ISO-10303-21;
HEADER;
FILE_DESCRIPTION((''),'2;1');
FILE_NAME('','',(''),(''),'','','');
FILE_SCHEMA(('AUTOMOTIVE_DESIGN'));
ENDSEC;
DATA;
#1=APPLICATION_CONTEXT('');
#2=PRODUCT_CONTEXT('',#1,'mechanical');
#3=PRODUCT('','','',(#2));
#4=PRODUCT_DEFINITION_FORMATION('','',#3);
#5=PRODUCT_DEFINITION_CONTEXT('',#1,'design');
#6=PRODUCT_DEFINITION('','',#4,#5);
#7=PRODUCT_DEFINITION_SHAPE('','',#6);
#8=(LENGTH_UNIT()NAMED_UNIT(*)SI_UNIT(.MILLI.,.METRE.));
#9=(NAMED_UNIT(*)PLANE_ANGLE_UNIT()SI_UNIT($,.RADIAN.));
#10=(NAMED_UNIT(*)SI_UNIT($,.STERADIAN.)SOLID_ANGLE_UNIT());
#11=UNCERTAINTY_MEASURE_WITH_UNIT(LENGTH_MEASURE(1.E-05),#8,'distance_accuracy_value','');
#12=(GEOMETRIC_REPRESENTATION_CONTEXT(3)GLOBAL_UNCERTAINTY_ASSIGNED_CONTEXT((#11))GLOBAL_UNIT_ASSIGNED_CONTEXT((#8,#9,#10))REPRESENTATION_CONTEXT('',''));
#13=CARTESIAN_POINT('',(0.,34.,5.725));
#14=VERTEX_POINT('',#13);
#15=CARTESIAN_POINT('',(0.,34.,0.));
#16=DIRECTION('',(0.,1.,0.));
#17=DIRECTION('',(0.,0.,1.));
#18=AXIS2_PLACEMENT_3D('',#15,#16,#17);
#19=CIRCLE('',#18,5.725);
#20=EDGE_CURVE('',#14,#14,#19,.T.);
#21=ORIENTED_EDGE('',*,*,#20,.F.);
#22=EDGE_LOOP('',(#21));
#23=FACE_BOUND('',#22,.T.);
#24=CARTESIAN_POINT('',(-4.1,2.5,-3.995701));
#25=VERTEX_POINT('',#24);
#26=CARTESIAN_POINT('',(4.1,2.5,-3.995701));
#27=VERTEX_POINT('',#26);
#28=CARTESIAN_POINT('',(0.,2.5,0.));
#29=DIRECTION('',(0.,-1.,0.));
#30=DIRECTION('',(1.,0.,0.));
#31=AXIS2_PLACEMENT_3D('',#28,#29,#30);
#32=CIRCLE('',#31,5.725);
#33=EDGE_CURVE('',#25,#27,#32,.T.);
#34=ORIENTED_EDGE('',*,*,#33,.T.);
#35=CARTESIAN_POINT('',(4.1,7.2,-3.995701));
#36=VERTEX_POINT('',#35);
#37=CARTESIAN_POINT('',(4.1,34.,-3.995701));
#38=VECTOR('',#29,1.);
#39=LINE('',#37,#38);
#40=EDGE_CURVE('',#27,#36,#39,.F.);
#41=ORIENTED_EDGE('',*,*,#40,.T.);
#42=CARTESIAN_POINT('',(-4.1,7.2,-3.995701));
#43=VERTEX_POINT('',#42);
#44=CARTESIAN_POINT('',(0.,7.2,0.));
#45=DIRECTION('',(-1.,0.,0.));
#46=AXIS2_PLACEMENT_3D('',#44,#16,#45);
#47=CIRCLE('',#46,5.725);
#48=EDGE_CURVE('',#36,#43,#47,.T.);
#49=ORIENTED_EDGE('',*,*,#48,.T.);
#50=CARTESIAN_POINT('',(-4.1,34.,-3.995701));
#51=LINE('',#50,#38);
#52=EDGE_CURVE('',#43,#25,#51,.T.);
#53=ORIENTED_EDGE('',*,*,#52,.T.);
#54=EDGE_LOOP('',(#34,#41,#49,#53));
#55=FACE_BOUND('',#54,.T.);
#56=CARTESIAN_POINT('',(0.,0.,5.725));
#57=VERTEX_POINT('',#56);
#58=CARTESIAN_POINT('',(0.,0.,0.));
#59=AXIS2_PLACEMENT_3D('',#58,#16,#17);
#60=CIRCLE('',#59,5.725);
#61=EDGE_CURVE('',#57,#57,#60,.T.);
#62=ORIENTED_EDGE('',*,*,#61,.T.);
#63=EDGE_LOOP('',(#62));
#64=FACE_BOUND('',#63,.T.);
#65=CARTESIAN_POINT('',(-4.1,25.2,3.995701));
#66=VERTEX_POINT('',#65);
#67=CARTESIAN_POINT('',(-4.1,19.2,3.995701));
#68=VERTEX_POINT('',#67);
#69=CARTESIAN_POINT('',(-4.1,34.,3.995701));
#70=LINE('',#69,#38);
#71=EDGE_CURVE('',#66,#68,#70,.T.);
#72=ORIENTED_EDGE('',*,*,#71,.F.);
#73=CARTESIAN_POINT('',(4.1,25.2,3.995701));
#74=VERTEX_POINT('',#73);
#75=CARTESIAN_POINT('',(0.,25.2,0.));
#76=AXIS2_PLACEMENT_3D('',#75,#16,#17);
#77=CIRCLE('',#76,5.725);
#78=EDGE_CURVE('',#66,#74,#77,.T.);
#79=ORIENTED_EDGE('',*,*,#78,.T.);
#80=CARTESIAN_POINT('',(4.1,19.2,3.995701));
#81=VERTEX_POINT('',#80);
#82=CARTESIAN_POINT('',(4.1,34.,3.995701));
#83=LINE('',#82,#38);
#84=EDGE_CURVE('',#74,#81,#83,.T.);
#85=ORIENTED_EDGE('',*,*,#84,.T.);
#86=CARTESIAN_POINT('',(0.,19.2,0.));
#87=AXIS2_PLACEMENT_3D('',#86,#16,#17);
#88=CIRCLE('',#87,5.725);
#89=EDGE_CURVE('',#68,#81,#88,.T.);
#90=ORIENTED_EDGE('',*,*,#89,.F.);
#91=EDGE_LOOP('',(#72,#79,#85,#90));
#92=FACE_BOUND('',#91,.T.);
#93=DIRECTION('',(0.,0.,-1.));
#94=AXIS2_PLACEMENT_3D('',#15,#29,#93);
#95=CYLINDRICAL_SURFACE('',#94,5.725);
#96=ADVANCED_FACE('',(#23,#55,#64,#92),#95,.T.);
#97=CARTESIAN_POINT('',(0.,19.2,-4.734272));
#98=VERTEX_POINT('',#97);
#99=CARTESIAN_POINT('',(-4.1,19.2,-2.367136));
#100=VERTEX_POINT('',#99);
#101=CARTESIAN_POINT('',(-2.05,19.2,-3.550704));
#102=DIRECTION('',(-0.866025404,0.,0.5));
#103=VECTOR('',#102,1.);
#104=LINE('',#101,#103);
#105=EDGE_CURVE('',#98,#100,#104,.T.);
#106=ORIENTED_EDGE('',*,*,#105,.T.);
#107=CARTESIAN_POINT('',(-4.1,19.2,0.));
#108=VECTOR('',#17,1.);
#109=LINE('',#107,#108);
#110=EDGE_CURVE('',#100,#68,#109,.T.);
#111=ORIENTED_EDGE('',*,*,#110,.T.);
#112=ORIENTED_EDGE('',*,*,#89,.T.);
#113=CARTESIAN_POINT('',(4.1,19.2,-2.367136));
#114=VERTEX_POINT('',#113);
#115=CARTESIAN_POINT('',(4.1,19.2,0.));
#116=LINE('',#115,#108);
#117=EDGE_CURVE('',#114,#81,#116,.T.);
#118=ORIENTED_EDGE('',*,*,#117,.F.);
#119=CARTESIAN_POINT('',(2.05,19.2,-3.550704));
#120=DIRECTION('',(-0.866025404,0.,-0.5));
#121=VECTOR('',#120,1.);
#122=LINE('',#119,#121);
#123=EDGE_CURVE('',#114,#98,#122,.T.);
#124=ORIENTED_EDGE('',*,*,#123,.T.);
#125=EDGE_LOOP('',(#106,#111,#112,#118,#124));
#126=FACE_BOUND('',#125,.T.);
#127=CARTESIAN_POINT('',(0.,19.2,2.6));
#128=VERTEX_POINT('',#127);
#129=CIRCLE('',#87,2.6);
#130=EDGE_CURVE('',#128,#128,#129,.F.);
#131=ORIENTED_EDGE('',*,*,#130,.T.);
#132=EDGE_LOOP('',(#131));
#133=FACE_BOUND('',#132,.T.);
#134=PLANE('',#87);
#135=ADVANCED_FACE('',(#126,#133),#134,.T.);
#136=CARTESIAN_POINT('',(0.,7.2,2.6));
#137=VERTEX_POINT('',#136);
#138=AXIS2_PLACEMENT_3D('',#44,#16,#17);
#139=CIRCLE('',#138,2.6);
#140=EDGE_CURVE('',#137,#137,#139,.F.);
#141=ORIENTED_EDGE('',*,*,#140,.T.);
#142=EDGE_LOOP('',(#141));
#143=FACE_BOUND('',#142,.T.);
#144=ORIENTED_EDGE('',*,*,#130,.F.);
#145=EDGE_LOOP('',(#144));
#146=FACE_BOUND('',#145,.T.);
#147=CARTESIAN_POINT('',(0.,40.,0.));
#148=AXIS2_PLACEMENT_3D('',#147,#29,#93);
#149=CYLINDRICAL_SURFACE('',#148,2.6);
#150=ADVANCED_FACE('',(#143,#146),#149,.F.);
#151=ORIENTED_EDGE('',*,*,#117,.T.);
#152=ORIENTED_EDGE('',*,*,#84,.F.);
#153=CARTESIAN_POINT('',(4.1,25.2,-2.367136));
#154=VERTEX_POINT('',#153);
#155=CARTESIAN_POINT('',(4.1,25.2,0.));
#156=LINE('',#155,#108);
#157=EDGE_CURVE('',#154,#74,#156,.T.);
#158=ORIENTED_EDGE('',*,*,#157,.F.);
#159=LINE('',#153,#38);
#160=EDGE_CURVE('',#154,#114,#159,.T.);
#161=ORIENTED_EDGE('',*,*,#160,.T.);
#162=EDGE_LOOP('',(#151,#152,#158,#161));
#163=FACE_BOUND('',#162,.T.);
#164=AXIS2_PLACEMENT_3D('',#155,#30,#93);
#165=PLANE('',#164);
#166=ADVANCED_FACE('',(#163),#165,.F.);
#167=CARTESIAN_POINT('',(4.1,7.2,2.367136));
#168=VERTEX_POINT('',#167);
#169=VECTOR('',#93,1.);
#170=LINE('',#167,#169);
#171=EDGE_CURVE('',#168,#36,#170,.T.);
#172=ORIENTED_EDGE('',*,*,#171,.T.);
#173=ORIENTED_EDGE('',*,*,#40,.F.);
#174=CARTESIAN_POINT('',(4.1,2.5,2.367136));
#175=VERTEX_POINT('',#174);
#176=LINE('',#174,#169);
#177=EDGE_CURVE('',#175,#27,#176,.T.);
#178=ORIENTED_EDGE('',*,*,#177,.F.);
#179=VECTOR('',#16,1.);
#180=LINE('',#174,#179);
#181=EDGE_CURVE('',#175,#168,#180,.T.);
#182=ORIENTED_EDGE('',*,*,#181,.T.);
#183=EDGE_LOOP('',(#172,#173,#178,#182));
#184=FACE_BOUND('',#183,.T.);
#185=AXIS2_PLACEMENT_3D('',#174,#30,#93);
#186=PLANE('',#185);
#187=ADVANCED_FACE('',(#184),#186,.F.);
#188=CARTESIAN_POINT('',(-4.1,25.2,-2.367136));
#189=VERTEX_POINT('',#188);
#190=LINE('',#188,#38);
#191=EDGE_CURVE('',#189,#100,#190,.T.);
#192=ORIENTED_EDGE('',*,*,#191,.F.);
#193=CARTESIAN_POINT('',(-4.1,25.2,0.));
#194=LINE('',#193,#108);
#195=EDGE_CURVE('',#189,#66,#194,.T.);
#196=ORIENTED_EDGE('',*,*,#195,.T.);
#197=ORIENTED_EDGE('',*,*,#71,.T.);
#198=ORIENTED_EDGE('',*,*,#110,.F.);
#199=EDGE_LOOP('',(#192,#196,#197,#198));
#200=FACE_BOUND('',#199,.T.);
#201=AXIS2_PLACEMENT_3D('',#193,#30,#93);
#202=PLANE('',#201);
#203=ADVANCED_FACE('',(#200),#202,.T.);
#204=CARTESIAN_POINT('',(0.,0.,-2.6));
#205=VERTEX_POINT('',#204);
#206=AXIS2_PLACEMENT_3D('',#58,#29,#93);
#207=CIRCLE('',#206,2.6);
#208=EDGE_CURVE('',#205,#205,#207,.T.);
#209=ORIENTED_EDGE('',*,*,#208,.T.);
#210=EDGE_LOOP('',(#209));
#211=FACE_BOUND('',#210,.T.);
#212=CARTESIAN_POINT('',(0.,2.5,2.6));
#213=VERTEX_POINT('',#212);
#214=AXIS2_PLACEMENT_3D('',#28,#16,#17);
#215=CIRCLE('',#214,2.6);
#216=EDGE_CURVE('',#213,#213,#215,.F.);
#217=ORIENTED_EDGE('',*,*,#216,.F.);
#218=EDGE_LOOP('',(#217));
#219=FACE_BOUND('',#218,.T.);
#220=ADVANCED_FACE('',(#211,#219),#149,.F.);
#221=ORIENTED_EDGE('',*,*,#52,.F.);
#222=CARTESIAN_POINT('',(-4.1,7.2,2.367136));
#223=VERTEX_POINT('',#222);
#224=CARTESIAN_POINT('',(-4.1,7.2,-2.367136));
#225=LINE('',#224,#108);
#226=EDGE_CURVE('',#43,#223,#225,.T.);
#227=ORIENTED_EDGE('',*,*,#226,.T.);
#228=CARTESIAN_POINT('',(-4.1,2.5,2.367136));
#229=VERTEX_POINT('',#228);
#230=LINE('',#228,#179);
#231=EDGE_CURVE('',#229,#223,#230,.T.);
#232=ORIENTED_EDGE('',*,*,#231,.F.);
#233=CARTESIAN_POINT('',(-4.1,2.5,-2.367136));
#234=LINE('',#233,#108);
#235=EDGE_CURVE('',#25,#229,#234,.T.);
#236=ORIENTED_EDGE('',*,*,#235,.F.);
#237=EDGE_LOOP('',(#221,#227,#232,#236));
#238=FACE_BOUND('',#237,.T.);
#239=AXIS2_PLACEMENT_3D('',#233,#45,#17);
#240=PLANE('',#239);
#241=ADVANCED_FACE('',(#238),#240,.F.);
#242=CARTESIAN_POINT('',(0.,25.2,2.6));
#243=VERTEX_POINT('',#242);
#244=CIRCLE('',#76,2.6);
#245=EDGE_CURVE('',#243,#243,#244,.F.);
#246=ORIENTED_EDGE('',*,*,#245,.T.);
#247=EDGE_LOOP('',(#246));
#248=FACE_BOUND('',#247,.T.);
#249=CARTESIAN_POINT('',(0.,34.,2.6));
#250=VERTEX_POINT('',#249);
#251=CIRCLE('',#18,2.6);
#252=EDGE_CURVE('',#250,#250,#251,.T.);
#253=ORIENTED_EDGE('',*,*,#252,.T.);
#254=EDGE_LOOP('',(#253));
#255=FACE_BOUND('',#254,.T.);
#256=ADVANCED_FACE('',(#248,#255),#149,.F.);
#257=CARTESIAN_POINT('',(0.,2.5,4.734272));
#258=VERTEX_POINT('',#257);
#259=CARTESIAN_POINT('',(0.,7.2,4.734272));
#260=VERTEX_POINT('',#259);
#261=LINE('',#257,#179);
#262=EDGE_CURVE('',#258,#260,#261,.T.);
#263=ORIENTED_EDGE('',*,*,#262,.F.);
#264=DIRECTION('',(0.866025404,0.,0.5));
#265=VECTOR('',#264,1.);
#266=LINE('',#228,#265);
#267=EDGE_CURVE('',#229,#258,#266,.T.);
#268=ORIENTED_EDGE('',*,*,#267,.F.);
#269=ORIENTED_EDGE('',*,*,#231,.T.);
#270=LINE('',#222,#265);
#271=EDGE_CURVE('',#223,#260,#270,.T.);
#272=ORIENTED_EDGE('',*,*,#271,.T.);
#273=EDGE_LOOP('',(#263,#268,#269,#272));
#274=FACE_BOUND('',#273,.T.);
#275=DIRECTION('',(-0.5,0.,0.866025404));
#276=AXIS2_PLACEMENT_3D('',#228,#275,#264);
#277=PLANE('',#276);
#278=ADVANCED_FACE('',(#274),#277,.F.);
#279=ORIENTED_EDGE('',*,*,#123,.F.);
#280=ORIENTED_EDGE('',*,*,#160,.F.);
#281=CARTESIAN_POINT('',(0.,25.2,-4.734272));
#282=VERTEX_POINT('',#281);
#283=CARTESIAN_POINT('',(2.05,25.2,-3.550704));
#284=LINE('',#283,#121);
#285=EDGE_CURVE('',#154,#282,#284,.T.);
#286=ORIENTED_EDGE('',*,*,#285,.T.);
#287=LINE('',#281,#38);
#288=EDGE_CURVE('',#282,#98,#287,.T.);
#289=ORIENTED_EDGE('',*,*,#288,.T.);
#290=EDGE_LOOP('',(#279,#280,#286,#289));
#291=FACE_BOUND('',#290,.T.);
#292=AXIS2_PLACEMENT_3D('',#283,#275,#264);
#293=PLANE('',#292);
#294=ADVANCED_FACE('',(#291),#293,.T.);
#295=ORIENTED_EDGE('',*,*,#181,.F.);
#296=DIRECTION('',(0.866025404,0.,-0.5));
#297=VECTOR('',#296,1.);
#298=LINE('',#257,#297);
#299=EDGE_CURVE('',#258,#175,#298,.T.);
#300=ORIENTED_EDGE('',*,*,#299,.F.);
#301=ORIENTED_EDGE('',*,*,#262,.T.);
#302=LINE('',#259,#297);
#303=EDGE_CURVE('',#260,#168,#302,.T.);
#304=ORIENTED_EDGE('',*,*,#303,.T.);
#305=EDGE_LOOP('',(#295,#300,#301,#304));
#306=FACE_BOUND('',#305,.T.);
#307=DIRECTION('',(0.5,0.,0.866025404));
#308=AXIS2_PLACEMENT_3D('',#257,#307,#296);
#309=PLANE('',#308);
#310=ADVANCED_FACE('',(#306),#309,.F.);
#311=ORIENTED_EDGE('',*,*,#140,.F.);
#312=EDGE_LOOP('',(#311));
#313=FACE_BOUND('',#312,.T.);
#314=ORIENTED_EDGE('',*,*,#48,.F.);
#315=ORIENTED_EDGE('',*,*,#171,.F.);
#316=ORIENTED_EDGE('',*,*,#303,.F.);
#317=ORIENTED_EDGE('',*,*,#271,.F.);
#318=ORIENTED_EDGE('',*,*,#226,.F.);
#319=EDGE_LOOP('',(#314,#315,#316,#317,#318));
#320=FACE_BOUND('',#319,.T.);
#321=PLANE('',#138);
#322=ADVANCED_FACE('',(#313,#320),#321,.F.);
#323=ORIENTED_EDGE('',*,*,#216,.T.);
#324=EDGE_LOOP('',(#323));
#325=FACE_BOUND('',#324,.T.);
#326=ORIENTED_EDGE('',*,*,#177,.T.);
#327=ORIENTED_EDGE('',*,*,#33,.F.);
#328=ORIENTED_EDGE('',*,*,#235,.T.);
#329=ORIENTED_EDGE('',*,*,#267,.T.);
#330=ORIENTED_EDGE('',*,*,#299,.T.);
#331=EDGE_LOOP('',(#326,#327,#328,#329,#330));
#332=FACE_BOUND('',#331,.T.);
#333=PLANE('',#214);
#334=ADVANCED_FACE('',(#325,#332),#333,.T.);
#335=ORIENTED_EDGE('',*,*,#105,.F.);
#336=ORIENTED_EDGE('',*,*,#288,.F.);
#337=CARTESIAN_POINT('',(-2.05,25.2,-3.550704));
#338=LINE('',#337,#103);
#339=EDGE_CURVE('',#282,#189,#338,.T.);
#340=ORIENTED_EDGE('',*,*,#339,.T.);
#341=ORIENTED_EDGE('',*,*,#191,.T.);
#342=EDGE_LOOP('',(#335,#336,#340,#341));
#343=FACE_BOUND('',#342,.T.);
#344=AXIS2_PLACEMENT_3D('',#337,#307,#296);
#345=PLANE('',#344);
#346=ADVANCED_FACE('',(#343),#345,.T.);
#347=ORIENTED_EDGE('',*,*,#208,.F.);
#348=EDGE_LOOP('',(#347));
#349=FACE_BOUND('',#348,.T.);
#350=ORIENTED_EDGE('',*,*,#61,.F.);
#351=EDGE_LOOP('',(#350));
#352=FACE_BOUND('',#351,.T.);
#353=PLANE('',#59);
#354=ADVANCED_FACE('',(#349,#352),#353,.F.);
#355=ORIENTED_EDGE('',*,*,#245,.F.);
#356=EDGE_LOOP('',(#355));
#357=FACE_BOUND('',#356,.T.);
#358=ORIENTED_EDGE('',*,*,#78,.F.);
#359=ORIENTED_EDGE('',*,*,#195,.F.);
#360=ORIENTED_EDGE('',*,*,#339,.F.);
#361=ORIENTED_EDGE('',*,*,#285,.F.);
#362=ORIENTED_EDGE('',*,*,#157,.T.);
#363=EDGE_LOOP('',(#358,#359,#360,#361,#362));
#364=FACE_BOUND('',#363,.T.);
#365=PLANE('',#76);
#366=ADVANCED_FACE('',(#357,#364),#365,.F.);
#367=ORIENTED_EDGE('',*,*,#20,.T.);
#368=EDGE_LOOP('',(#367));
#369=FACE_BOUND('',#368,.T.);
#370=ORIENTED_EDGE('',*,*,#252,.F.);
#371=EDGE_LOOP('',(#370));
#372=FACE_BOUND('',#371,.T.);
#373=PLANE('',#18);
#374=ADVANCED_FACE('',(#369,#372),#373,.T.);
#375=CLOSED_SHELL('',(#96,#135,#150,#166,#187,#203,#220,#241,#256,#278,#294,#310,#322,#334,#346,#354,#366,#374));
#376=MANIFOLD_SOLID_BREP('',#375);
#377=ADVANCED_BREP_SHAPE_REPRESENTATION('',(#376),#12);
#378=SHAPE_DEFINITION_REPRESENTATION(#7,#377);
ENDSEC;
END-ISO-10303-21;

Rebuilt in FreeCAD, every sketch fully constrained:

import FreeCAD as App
import Part
import Sketcher

V = App.Vector
Q = App.Units.Quantity

doc = App.newDocument("Part")
body = doc.addObject("PartDesign::Body", "Body")

sketch1 = body.newObject("Sketcher::SketchObject", "Sketch")
sketch1.AttachmentSupport = (doc.getObject("XZ_Plane"), [""])
sketch1.MapMode = "FlatFace"
sketch1.addGeometry([
    Part.Circle(V(0, 0, 0), V(0, 0, 1), 5.7),
    Part.Circle(V(0, 0, 0), V(0, 0, 1), 3),
], False)
sketch1.addConstraint([
    Sketcher.Constraint("Coincident", 0, 3, -1, 1),
    Sketcher.Constraint("Coincident", 1, 3, -1, 1),
    Sketcher.Constraint("Diameter", 1, 6.0),
    Sketcher.Constraint("Diameter", 0, 11.45),
])
pad1 = body.newObject("PartDesign::Pad", "Pad")
pad1.Profile = sketch1
pad1.Length = 34
pad1.Reversed = True

sketch2 = body.newObject("Sketcher::SketchObject", "Sketch001")
sketch2.AttachmentSupport = (doc.getObject("XZ_Plane"), [""])
sketch2.MapMode = "FlatFace"
sketch2.addGeometry(Part.Circle(V(0, 0, 0), V(0, 0, 1), 6), False)
sketch2.addConstraint([
    Sketcher.Constraint("Coincident", 0, 3, -1, 1),
    Sketcher.Constraint("Diameter", 0, 11.45),
])
pad2 = body.newObject("PartDesign::Pad", "Pad001")
pad2.Profile = sketch2
pad2.Length = 34
pad2.Reversed = True

sketch3 = body.newObject("Sketcher::SketchObject", "Sketch002")
sketch3.AttachmentSupport = (doc.getObject("XZ_Plane"), [""])
sketch3.MapMode = "FlatFace"
sketch3.addGeometry(Part.Circle(V(0, 0, 0), V(0, 0, 1), 2.6), False)
sketch3.addConstraint([
    Sketcher.Constraint("Coincident", 0, 3, -1, 1),
    Sketcher.Constraint("Diameter", 0, 5.2),
])
pocket1 = body.newObject("PartDesign::Pocket", "Pocket")
pocket1.Profile = sketch3
pocket1.Length = 40

sketch4 = body.newObject("Sketcher::SketchObject", "Sketch003")
sketch4.AttachmentSupport = (doc.getObject("XZ_Plane"), [""])
sketch4.MapMode = "FlatFace"
sketch4.AttachmentOffset = App.Placement(V(0, 0, -7.2), App.Rotation())
sketch4.addGeometry([
    Part.LineSegment(V(0, 4.7, 0), V(4.1, 2.4, 0)),
    Part.LineSegment(V(4.1, 2.4, 0), V(4.1, -2.4, 0)),
    Part.LineSegment(V(4.1, -2.4, 0), V(0, -4.7, 0)),
    Part.LineSegment(V(0, -4.7, 0), V(-4.1, -2.4, 0)),
    Part.LineSegment(V(-4.1, -2.4, 0), V(-4.1, 2.4, 0)),
    Part.LineSegment(V(-4.1, 2.4, 0), V(0, 4.7, 0)),
], False)
sketch4.addConstraint([
    Sketcher.Constraint("Coincident", 0, 2, 1, 1),
    Sketcher.Constraint("Coincident", 1, 2, 2, 1),
    Sketcher.Constraint("Coincident", 2, 2, 3, 1),
    Sketcher.Constraint("Coincident", 3, 2, 4, 1),
    Sketcher.Constraint("Coincident", 4, 2, 5, 1),
    Sketcher.Constraint("Coincident", 5, 2, 0, 1),
    Sketcher.Constraint("Vertical", 1),
    Sketcher.Constraint("Vertical", 4),
    Sketcher.Constraint("Symmetric", 0, 2, 3, 2, -1, 1),
    Sketcher.Constraint("Symmetric", 2, 2, 5, 2, -1, 1),
    Sketcher.Constraint("PointOnObject", 2, 2, -2),
    Sketcher.Constraint("Parallel", 2, 5),
    Sketcher.Constraint("Horizontal", 1, 2, 3, 2),
    Sketcher.Constraint("Angle", 0, Q("-30 deg")),
    Sketcher.Constraint("DistanceX", -1, 1, 0, 2, 4.1),
    Sketcher.Constraint("DistanceY", 1, 2, 1, 1, 4.734272),
])
pocket2 = body.newObject("PartDesign::Pocket", "Pocket001")
pocket2.Profile = sketch4
pocket2.Length = 4.7
pocket2.Reversed = True

sketch5 = body.newObject("Sketcher::SketchObject", "Sketch004")
sketch5.AttachmentSupport = (doc.getObject("XY_Plane"), [""])
sketch5.MapMode = "FlatFace"
sketch5.addGeometry([
    Part.LineSegment(V(-4.1, 7.2, 0), V(-4.1, 2.5, 0)),
    Part.LineSegment(V(-4.1, 2.5, 0), V(4.1, 2.5, 0)),
    Part.LineSegment(V(4.1, 2.5, 0), V(4.1, 7.2, 0)),
    Part.LineSegment(V(4.1, 7.2, 0), V(-4.1, 7.2, 0)),
], False)
sketch5.addConstraint([
    Sketcher.Constraint("Coincident", 0, 2, 1, 1),
    Sketcher.Constraint("Coincident", 1, 2, 2, 1),
    Sketcher.Constraint("Coincident", 2, 2, 3, 1),
    Sketcher.Constraint("Coincident", 3, 2, 0, 1),
    Sketcher.Constraint("Vertical", 0),
    Sketcher.Constraint("Horizontal", 1),
    Sketcher.Constraint("Vertical", 2),
    Sketcher.Constraint("Horizontal", 3),
    Sketcher.Constraint("DistanceX", 1, 1, 1, 2, 8.2),
    Sketcher.Constraint("DistanceY", 0, 2, 0, 1, 4.7),
    Sketcher.Constraint("DistanceX", 0, 2, -1, 1, 4.1),
    Sketcher.Constraint("DistanceY", -1, 1, 0, 2, 2.5),
])
pocket3 = body.newObject("PartDesign::Pocket", "Pocket002")
pocket3.Profile = sketch5
pocket3.Length = 10

sketch6 = body.newObject("Sketcher::SketchObject", "Sketch005")
sketch6.AttachmentSupport = (doc.getObject("XZ_Plane"), [""])
sketch6.MapMode = "FlatFace"
sketch6.AttachmentOffset = App.Placement(V(0, 0, -19.2), App.Rotation())
sketch6.addGeometry([
    Part.LineSegment(V(-4.1, -2.4, 0), V(-4.1, 15.7, 0)),
    Part.LineSegment(V(-4.1, 15.7, 0), V(4.1, 15.7, 0)),
    Part.LineSegment(V(4.1, 15.7, 0), V(4.1, -2.4, 0)),
    Part.LineSegment(V(4.1, -2.4, 0), V(0, -4.7, 0)),
    Part.LineSegment(V(0, -4.7, 0), V(-4.1, -2.4, 0)),
], False)
sketch6.addConstraint([
    Sketcher.Constraint("Coincident", 0, 2, 1, 1),
    Sketcher.Constraint("Coincident", 1, 2, 2, 1),
    Sketcher.Constraint("Coincident", 2, 2, 3, 1),
    Sketcher.Constraint("Coincident", 3, 2, 4, 1),
    Sketcher.Constraint("Coincident", 4, 2, 0, 1),
    Sketcher.Constraint("Vertical", 0),
    Sketcher.Constraint("Horizontal", 1),
    Sketcher.Constraint("Vertical", 2),
    Sketcher.Constraint("Symmetric", 2, 2, 4, 2, -2),
    Sketcher.Constraint("PointOnObject", 3, 2, -2),
    Sketcher.Constraint("Angle", 3, Q("-150 deg")),
    Sketcher.Constraint("DistanceX", 1, 1, 1, 2, 8.2),
    Sketcher.Constraint("DistanceY", 3, 2, 0, 2, 20.3938),
    Sketcher.Constraint("DistanceY", -1, 1, 0, 2, 15.659528),
])
pocket4 = body.newObject("PartDesign::Pocket", "Pocket003")
pocket4.Profile = sketch6
pocket4.Length = 6

doc.recompute()
